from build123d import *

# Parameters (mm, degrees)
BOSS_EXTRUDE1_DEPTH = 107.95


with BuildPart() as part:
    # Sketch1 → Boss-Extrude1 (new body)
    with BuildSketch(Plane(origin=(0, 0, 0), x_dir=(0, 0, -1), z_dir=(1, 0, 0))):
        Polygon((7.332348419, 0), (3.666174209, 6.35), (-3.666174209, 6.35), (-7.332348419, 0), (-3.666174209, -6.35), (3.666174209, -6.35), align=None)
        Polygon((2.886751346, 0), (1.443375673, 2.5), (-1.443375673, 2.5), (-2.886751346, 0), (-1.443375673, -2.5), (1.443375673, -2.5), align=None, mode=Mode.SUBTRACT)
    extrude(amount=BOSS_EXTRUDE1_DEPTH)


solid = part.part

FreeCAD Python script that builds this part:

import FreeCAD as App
import Part
import Sketcher
Q = App.Units.Quantity


def add_polygon(sketch, points):
    """Adds a closed chain of lines whose ends are joined by coincident constraints."""
    first, n = sketch.GeometryCount, len(points)
    for a, b in zip(points, points[1:] + points[:1]):
        sketch.addGeometry(Part.LineSegment(App.Vector(*a, 0), App.Vector(*b, 0)), False)
    for i in range(n):
        sketch.addConstraint(Sketcher.Constraint("Coincident", first + i, 2, first + (i + 1) % n, 1))

doc = App.newDocument("Part")
params = doc.addObject("Spreadsheet::Sheet", "Params")
for row, (alias, value) in enumerate([
    ("pad1_length", "4.25 in"),
], start=1):
    params.set(f"A{row}", alias)
    params.set(f"B{row}", "=" + value)
    params.setAlias(f"B{row}", alias)

body = doc.addObject("PartDesign::Body", "Body")

# Sketch on YZ plane
sketch1 = body.newObject("Sketcher::SketchObject", "Sketch")
sketch1.AttachmentSupport = (doc.getObject("YZ_Plane"), [""])
sketch1.MapMode = "FlatFace"
add_polygon(sketch1, [(0, -7.3), (6.3, -3.7), (6.3, 3.7), (0, 7.3), (-6.3, 3.7), (-6.3, -3.7)])  # lines 0-5
add_polygon(sketch1, [(2.5, -1.4), (0, -2.9), (-2.5, -1.4), (-2.5, 1.4), (0, 2.9), (2.5, 1.4)])  # lines 6-11
sketch1.addConstraint([
    Sketcher.Constraint("Vertical", 1),
    Sketcher.Constraint("Vertical", 4),
    Sketcher.Constraint("Vertical", 8),
    Sketcher.Constraint("Vertical", 11),
    Sketcher.Constraint("Symmetric", 0, 2, 3, 2, -1, 1),
    Sketcher.Constraint("Symmetric", 2, 2, 5, 2, -1, 1),
    Sketcher.Constraint("Symmetric", 6, 2, 9, 2, -1, 1),
    Sketcher.Constraint("Symmetric", 7, 2, 10, 2, -1, 1),
    Sketcher.Constraint("PointOnObject", 2, 2, -2),
    Sketcher.Constraint("PointOnObject", 6, 2, -2),
    Sketcher.Constraint("Parallel", 2, 5),
    Sketcher.Constraint("Parallel", 3, 6),
    Sketcher.Constraint("Parallel", 5, 7),
    Sketcher.Constraint("Parallel", 6, 9),
    Sketcher.Constraint("Horizontal", 1, 2, 3, 2),
    Sketcher.Constraint("Angle", 0, Q("30 deg")),
    Sketcher.Constraint("DistanceX", 3, 2, 1, 2, Q("0.5 in")),
    Sketcher.Constraint("DistanceY", 1, 1, 1, 2, Q("7.332348 mm")),
    Sketcher.Constraint("DistanceY", 8, 1, 8, 2, Q("2.886751 mm")),
    Sketcher.Constraint("DistanceX", 7, 2, -1, 1, Q("2.5 mm")),
])
pad1 = body.newObject("PartDesign::Pad", "Pad")
pad1.Profile = sketch1
pad1.setExpression("Length", "Params.pad1_length")

doc.recompute()
